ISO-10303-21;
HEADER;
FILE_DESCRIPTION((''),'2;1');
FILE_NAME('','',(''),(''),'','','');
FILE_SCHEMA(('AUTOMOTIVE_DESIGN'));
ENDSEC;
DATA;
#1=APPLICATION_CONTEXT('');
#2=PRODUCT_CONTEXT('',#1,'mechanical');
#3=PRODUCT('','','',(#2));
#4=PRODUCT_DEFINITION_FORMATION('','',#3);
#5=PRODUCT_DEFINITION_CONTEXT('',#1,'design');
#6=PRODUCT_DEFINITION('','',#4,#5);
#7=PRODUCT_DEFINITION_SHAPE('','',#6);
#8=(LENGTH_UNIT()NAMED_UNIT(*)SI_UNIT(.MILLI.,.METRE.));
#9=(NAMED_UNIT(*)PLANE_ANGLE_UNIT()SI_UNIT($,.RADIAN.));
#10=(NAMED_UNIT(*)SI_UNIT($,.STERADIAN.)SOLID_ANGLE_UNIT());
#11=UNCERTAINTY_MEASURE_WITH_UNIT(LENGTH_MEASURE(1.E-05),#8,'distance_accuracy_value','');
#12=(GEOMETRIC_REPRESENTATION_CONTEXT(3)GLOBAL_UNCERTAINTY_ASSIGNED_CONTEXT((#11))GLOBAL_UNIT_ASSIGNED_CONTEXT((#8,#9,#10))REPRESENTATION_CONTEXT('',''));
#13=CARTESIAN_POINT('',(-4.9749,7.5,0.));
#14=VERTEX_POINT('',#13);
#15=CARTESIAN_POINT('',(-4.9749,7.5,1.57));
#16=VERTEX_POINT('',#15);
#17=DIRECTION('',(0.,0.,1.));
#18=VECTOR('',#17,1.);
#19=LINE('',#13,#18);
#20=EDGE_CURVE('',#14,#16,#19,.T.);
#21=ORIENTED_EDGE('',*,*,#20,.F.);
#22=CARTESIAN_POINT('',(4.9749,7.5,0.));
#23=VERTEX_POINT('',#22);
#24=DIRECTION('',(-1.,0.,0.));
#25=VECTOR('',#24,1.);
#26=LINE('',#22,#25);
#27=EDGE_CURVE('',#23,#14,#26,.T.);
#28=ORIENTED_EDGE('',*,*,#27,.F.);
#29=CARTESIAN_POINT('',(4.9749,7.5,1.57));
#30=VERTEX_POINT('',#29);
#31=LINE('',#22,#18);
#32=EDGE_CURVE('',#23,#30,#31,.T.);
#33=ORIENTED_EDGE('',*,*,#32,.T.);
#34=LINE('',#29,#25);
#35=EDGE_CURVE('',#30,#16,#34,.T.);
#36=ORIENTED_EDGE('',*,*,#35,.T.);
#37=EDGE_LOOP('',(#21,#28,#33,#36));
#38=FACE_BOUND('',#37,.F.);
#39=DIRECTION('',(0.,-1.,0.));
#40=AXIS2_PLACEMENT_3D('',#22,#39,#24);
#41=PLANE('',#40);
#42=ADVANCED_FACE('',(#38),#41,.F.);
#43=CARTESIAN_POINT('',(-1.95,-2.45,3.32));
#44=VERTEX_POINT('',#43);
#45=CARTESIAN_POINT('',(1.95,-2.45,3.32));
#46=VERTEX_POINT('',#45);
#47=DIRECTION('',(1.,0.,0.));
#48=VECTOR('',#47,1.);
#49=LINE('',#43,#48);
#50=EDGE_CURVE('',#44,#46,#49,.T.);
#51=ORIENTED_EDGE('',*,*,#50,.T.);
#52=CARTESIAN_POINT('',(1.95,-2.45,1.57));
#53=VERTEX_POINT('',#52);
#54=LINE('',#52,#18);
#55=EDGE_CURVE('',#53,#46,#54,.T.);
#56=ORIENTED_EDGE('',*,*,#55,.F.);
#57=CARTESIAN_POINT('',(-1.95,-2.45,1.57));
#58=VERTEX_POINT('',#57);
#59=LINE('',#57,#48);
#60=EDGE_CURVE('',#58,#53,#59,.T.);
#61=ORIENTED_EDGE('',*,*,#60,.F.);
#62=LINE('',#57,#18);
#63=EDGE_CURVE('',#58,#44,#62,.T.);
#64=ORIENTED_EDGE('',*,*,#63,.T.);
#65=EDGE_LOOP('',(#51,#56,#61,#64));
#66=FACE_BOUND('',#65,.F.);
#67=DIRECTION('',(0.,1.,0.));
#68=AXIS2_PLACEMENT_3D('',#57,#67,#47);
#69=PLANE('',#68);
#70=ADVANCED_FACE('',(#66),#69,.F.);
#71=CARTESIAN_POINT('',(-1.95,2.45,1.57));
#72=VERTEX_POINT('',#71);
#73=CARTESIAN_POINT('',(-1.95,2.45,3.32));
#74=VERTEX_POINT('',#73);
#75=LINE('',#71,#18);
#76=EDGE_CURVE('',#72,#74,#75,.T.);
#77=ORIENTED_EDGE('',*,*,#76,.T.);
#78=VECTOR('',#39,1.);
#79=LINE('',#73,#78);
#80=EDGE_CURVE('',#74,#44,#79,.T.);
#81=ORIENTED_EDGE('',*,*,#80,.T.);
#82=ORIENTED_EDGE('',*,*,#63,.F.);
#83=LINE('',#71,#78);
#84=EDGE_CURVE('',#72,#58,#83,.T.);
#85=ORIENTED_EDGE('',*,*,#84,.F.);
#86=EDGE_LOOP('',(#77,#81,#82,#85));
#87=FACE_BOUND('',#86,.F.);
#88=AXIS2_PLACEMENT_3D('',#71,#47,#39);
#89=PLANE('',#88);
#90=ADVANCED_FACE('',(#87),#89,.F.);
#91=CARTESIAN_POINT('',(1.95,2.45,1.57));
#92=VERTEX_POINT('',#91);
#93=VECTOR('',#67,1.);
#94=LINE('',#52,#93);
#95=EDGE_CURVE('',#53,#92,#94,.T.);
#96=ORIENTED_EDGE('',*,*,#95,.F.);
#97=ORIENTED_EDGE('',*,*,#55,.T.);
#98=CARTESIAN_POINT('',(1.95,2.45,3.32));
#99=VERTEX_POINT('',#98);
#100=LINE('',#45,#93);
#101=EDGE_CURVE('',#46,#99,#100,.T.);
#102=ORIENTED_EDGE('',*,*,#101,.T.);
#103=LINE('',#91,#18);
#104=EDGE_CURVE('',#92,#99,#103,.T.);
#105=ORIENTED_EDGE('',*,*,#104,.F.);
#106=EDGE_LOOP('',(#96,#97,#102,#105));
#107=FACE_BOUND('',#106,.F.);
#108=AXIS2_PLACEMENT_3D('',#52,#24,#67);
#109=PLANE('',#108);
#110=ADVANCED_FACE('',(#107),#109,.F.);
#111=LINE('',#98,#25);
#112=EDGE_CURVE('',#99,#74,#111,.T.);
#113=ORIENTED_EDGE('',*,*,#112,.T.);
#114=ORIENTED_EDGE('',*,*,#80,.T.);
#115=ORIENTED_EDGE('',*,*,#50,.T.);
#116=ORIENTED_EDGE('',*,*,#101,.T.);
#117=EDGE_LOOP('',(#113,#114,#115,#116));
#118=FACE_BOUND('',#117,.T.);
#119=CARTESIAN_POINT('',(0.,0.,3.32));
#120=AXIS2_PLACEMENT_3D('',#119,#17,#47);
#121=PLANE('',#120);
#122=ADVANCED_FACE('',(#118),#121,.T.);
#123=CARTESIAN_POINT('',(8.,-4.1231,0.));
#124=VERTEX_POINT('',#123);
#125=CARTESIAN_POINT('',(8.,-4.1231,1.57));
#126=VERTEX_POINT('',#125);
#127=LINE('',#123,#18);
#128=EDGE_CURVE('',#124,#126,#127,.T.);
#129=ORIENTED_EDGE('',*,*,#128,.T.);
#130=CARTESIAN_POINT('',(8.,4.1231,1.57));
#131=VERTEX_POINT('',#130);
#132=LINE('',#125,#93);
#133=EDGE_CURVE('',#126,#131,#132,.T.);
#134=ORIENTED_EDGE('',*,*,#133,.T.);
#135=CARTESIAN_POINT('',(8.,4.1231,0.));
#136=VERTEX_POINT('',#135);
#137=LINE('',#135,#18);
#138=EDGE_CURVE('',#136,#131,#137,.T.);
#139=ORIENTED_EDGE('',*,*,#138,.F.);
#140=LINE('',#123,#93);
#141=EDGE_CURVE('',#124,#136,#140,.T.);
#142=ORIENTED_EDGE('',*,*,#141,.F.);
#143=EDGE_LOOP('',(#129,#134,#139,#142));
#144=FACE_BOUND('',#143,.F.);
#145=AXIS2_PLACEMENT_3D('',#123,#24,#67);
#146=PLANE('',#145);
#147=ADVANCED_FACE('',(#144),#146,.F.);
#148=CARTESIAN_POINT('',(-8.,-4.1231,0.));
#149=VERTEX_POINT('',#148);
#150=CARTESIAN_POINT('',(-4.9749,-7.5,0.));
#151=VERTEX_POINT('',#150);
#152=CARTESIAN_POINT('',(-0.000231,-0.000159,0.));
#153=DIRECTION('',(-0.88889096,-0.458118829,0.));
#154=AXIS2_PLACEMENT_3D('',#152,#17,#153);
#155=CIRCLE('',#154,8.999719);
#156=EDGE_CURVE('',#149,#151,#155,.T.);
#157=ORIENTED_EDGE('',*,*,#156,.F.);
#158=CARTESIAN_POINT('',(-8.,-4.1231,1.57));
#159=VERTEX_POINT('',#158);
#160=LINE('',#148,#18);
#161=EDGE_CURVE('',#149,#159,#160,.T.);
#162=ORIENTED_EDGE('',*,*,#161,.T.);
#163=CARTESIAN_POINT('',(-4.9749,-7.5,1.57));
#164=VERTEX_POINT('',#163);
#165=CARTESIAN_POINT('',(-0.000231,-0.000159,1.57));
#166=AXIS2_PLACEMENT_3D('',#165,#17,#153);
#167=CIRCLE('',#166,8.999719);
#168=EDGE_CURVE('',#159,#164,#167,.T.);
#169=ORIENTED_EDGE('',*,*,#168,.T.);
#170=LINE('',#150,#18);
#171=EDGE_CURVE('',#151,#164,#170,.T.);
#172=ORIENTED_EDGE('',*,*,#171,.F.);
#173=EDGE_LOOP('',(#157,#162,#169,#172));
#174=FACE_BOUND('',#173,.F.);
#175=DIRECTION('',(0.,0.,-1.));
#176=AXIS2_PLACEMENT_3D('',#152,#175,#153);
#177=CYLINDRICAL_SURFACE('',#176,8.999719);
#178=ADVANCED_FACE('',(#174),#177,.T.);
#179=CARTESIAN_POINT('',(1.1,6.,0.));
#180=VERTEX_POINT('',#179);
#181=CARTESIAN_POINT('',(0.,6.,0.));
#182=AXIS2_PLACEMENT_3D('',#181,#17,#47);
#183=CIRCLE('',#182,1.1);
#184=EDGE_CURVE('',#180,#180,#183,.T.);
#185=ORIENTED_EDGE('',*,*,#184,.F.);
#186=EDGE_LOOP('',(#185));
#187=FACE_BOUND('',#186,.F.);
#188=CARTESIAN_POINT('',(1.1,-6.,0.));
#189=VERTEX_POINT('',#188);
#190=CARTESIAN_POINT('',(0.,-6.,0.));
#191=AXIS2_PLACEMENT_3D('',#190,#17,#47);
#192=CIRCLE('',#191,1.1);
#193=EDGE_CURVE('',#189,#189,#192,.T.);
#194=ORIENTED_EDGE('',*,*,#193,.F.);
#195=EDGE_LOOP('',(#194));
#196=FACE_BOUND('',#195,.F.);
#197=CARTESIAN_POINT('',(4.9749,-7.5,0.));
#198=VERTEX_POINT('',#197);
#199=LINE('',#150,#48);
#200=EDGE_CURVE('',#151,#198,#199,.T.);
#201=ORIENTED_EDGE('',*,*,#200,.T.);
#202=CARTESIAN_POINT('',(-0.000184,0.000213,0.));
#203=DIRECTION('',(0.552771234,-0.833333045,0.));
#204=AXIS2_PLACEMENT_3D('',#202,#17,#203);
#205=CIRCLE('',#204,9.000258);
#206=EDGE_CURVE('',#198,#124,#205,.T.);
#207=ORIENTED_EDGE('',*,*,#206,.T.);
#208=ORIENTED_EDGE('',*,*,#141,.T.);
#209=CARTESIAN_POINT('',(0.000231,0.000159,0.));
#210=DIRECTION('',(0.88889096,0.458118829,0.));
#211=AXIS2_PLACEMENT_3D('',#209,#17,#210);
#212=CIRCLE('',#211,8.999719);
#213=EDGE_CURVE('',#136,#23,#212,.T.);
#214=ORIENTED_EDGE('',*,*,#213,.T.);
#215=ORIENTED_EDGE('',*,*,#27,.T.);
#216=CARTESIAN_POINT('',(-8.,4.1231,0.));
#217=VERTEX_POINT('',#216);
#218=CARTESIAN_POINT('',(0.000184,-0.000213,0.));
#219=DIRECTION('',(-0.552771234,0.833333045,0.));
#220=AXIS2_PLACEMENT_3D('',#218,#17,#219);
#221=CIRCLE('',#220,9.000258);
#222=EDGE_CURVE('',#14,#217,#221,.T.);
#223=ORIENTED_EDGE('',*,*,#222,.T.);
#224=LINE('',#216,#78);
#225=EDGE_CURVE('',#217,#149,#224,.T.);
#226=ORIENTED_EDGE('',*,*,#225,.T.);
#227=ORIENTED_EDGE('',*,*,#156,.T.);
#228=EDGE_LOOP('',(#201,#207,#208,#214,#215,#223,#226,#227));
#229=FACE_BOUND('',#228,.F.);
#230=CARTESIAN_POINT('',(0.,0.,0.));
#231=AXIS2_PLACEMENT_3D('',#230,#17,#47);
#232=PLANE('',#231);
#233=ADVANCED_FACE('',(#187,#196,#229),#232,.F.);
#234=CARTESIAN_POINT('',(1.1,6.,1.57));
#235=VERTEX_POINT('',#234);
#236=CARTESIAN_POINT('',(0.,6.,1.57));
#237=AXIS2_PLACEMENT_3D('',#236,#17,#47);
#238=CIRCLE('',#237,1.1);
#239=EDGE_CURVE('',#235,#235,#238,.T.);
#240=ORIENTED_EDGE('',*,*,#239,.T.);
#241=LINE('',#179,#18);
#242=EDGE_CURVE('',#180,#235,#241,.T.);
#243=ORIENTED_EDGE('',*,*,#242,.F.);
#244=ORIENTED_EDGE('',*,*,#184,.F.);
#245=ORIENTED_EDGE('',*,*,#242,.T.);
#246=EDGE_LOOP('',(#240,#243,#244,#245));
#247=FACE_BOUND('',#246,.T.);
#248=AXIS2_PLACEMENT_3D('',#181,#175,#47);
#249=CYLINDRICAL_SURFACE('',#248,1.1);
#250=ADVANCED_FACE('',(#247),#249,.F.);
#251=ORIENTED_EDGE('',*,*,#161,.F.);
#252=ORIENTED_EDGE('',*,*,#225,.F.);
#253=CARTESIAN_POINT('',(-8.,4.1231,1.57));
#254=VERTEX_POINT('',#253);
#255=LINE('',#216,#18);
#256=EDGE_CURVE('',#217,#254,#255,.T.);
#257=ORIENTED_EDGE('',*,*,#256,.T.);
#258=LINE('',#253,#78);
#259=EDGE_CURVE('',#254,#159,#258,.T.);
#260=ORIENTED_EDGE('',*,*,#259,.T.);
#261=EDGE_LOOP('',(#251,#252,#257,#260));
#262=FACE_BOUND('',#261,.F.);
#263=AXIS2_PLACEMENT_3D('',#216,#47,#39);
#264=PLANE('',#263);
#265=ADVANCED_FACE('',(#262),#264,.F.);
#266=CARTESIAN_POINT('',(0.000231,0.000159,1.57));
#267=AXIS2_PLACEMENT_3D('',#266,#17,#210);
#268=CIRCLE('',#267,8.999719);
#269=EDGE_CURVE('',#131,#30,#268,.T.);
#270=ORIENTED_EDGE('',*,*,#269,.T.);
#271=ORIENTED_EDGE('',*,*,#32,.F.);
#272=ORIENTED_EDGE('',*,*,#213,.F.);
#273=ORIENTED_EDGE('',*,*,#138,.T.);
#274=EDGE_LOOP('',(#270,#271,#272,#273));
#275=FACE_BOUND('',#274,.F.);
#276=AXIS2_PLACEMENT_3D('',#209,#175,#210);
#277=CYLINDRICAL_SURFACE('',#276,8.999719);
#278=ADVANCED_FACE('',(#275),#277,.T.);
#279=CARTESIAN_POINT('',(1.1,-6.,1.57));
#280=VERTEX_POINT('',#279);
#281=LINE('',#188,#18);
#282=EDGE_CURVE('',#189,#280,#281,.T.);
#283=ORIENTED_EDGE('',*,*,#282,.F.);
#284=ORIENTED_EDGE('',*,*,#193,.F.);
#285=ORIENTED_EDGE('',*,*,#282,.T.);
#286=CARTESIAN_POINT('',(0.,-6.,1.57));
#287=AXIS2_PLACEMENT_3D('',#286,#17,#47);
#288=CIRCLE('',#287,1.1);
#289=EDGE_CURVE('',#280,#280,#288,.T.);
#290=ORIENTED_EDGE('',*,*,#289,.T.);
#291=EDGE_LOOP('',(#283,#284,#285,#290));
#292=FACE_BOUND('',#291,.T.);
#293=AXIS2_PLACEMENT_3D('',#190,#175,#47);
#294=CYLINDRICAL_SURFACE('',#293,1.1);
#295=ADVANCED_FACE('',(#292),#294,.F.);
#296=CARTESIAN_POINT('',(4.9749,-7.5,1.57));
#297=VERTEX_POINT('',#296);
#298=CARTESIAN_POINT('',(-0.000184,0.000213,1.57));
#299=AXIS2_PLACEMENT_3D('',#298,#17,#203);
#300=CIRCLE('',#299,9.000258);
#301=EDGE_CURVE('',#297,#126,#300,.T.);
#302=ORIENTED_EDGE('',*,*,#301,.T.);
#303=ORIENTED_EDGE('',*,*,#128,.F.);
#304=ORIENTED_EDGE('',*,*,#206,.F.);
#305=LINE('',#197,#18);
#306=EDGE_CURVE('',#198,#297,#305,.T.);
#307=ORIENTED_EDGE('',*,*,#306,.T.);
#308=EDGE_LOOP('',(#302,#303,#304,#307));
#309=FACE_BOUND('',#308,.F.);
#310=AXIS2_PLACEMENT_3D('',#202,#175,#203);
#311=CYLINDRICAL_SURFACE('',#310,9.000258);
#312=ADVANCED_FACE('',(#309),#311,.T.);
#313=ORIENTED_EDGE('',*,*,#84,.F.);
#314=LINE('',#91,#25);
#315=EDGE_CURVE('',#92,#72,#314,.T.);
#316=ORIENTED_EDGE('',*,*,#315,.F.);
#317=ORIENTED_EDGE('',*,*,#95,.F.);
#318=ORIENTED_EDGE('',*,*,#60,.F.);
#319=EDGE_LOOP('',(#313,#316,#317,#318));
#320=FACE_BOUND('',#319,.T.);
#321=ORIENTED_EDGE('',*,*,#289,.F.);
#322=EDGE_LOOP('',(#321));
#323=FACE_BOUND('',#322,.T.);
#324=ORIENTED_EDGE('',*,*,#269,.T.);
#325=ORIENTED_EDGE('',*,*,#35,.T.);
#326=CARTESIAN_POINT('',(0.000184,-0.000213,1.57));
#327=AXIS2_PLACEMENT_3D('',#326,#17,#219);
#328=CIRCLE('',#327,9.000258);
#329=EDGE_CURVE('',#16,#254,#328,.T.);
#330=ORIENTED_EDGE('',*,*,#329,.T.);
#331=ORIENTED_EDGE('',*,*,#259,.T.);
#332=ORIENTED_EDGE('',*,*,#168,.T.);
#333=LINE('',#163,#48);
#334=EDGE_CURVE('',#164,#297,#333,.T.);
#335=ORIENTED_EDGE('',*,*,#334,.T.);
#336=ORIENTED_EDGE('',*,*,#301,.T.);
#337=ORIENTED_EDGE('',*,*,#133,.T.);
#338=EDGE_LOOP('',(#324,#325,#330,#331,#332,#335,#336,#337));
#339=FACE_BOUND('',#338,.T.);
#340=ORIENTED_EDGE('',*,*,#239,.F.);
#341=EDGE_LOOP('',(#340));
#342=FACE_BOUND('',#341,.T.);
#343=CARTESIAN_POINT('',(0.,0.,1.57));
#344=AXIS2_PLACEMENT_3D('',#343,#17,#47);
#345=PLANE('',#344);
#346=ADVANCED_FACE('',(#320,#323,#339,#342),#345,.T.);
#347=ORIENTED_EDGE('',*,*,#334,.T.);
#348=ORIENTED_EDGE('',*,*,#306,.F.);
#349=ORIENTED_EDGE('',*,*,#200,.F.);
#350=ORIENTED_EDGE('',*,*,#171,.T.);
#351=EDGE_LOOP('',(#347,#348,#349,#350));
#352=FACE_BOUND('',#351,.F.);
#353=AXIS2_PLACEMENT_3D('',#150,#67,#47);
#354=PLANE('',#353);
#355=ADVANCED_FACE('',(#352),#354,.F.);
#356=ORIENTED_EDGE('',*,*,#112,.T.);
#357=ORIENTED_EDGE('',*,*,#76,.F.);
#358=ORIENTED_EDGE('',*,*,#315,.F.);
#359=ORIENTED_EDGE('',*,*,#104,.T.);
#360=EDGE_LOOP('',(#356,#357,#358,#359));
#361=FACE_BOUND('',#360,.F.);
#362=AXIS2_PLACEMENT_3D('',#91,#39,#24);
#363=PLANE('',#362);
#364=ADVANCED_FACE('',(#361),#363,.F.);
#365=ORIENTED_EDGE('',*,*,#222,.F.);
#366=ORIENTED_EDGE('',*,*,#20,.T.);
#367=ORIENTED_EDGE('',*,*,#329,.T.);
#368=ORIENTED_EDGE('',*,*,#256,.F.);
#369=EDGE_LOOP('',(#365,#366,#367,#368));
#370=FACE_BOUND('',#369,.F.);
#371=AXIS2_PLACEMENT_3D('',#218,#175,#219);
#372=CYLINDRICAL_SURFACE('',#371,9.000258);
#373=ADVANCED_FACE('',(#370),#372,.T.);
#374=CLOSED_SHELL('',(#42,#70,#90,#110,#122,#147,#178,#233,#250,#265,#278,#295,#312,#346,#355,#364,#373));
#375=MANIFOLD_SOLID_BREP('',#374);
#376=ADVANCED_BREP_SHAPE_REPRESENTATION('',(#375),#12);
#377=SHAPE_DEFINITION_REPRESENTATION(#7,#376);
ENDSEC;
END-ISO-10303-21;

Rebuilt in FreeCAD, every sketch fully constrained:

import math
import FreeCAD as App
import Part
import Sketcher

V = App.Vector


def add_polygon(sketch, points):
    """Adds a closed chain of lines whose ends are joined by coincident constraints."""
    first, n = sketch.GeometryCount, len(points)
    for a, b in zip(points, points[1:] + points[:1]):
        sketch.addGeometry(Part.LineSegment(App.Vector(*a, 0), App.Vector(*b, 0)), False)
    for i in range(n):
        sketch.addConstraint(Sketcher.Constraint("Coincident", first + i, 2, first + (i + 1) % n, 1))

doc = App.newDocument("Part")
params = doc.addObject("Spreadsheet::Sheet", "Params")
for row, (alias, value) in enumerate([
    ("sketch1_radius", "9 mm"),
    ("sketch1_diameter", "2.2 mm"),
    ("pad1_length", "1.57 mm"),
    ("sketch2_width", "3.9 mm"),
    ("sketch2_height", "4.9 mm"),
    ("pad2_length", "1.75 mm"),
], start=1):
    params.set(f"A{row}", alias)
    params.set(f"B{row}", "=" + value)
    params.setAlias(f"B{row}", alias)

body = doc.addObject("PartDesign::Body", "Body")

# Sketch on XY plane
sketch1 = body.newObject("Sketcher::SketchObject", "Sketch")
sketch1.AttachmentSupport = (doc.getObject("XY_Plane"), [""])
sketch1.MapMode = "FlatFace"
sketch1.addGeometry([
    Part.LineSegment(V(8, -4.1, 0), V(8, 4.1, 0)),  # 0
    Part.ArcOfCircle(Part.Circle(V(0, 0, 0), V(0, 0, 1), 9), math.radians(27), math.radians(56)),  # 1
    Part.LineSegment(V(5, 7.5, 0), V(-5, 7.5, 0)),  # 2
    Part.ArcOfCircle(Part.Circle(V(0, 0, 0), V(0, 0, 1), 9), math.radians(124), math.radians(153)),  # 3
    Part.LineSegment(V(-8, 4.1, 0), V(-8, -4.1, 0)),  # 4
    Part.ArcOfCircle(Part.Circle(V(0, 0, 0), V(0, 0, 1), 9), math.radians(-153), math.radians(-124)),  # 5
    Part.LineSegment(V(-5, -7.5, 0), V(5, -7.5, 0)),  # 6
    Part.ArcOfCircle(Part.Circle(V(0, 0, 0), V(0, 0, 1), 9), math.radians(-56), math.radians(-27)),  # 7
    Part.Circle(V(0, -6, 0), V(0, 0, 1), 1.1),  # 8
    Part.Circle(V(0, 6, 0), V(0, 0, 1), 1.1),  # 9
], False)
sketch1.addConstraint([
    Sketcher.Constraint("Coincident", 0, 2, 1, 1),
    Sketcher.Constraint("Coincident", 1, 2, 2, 1),
    Sketcher.Constraint("Coincident", 2, 2, 3, 1),
    Sketcher.Constraint("Coincident", 3, 2, 4, 1),
    Sketcher.Constraint("Coincident", 4, 2, 5, 1),
    Sketcher.Constraint("Coincident", 5, 2, 6, 1),
    Sketcher.Constraint("Coincident", 6, 2, 7, 1),
    Sketcher.Constraint("Coincident", 7, 2, 0, 1),
    Sketcher.Constraint("Vertical", 0),
    Sketcher.Constraint("Horizontal", 2),
    Sketcher.Constraint("Vertical", 4),
    Sketcher.Constraint("Horizontal", 6),
    Sketcher.Constraint("Coincident", 1, 3, -1, 1),
    Sketcher.Constraint("Coincident", 3, 3, -1, 1),
    Sketcher.Constraint("Coincident", 5, 3, -1, 1),
    Sketcher.Constraint("Coincident", 7, 3, -1, 1),
    Sketcher.Constraint("Equal", 1, 3),
    Sketcher.Constraint("Equal", 3, 5),
    Sketcher.Constraint("Equal", 5, 7),
    Sketcher.Constraint("Equal", 8, 9),
    Sketcher.Constraint("Symmetric", 8, 3, 9, 3, -1, 1),
    Sketcher.Constraint("PointOnObject", 8, 3, -2),
    Sketcher.Constraint("Horizontal", 0, 2, 3, 2),
    Sketcher.Constraint("Vertical", 2, 2, 5, 2),
    Sketcher.Constraint("Radius", 1, 9.0),
    Sketcher.Constraint("Diameter", 8, 2.2),
    Sketcher.Constraint("DistanceY", 8, 3, -1, 1, 6.0),
    Sketcher.Constraint("DistanceX", -1, 1, 0, 2, 8.0),
    Sketcher.Constraint("DistanceY", -1, 1, 1, 2, 7.5),
])
sketch1.setExpression("Constraints[24]", "Params.sketch1_radius")
sketch1.setExpression("Constraints[25]", "Params.sketch1_diameter")
pad1 = body.newObject("PartDesign::Pad", "Pad")
pad1.Profile = sketch1
pad1.setExpression("Length", "Params.pad1_length")

# Sketch on XY plane
sketch2 = body.newObject("Sketcher::SketchObject", "Sketch001")
sketch2.AttachmentSupport = (doc.getObject("XY_Plane"), [""])
sketch2.MapMode = "FlatFace"
sketch2.AttachmentOffset = App.Placement(V(0, 0, 1.57), App.Rotation())
add_polygon(sketch2, [(1.9, -2.5), (1.9, 2.5), (-1.9, 2.5), (-1.9, -2.5)])  # lines 0-3
sketch2.addConstraint([
    Sketcher.Constraint("Vertical", 0),
    Sketcher.Constraint("Horizontal", 1),
    Sketcher.Constraint("Vertical", 2),
    Sketcher.Constraint("Horizontal", 3),
    Sketcher.Constraint("Symmetric", 0, 2, 2, 2, -1, 1),
    Sketcher.Constraint("DistanceX", 1, 2, 1, 1, 3.9),
    Sketcher.Constraint("DistanceY", 0, 1, 0, 2, 4.9),
])
sketch2.setExpression("Constraints[9]", "Params.sketch2_width")
sketch2.setExpression("Constraints[10]", "Params.sketch2_height")
pad2 = body.newObject("PartDesign::Pad", "Pad001")
pad2.Profile = sketch2
pad2.setExpression("Length", "Params.pad2_length")

doc.recompute()
